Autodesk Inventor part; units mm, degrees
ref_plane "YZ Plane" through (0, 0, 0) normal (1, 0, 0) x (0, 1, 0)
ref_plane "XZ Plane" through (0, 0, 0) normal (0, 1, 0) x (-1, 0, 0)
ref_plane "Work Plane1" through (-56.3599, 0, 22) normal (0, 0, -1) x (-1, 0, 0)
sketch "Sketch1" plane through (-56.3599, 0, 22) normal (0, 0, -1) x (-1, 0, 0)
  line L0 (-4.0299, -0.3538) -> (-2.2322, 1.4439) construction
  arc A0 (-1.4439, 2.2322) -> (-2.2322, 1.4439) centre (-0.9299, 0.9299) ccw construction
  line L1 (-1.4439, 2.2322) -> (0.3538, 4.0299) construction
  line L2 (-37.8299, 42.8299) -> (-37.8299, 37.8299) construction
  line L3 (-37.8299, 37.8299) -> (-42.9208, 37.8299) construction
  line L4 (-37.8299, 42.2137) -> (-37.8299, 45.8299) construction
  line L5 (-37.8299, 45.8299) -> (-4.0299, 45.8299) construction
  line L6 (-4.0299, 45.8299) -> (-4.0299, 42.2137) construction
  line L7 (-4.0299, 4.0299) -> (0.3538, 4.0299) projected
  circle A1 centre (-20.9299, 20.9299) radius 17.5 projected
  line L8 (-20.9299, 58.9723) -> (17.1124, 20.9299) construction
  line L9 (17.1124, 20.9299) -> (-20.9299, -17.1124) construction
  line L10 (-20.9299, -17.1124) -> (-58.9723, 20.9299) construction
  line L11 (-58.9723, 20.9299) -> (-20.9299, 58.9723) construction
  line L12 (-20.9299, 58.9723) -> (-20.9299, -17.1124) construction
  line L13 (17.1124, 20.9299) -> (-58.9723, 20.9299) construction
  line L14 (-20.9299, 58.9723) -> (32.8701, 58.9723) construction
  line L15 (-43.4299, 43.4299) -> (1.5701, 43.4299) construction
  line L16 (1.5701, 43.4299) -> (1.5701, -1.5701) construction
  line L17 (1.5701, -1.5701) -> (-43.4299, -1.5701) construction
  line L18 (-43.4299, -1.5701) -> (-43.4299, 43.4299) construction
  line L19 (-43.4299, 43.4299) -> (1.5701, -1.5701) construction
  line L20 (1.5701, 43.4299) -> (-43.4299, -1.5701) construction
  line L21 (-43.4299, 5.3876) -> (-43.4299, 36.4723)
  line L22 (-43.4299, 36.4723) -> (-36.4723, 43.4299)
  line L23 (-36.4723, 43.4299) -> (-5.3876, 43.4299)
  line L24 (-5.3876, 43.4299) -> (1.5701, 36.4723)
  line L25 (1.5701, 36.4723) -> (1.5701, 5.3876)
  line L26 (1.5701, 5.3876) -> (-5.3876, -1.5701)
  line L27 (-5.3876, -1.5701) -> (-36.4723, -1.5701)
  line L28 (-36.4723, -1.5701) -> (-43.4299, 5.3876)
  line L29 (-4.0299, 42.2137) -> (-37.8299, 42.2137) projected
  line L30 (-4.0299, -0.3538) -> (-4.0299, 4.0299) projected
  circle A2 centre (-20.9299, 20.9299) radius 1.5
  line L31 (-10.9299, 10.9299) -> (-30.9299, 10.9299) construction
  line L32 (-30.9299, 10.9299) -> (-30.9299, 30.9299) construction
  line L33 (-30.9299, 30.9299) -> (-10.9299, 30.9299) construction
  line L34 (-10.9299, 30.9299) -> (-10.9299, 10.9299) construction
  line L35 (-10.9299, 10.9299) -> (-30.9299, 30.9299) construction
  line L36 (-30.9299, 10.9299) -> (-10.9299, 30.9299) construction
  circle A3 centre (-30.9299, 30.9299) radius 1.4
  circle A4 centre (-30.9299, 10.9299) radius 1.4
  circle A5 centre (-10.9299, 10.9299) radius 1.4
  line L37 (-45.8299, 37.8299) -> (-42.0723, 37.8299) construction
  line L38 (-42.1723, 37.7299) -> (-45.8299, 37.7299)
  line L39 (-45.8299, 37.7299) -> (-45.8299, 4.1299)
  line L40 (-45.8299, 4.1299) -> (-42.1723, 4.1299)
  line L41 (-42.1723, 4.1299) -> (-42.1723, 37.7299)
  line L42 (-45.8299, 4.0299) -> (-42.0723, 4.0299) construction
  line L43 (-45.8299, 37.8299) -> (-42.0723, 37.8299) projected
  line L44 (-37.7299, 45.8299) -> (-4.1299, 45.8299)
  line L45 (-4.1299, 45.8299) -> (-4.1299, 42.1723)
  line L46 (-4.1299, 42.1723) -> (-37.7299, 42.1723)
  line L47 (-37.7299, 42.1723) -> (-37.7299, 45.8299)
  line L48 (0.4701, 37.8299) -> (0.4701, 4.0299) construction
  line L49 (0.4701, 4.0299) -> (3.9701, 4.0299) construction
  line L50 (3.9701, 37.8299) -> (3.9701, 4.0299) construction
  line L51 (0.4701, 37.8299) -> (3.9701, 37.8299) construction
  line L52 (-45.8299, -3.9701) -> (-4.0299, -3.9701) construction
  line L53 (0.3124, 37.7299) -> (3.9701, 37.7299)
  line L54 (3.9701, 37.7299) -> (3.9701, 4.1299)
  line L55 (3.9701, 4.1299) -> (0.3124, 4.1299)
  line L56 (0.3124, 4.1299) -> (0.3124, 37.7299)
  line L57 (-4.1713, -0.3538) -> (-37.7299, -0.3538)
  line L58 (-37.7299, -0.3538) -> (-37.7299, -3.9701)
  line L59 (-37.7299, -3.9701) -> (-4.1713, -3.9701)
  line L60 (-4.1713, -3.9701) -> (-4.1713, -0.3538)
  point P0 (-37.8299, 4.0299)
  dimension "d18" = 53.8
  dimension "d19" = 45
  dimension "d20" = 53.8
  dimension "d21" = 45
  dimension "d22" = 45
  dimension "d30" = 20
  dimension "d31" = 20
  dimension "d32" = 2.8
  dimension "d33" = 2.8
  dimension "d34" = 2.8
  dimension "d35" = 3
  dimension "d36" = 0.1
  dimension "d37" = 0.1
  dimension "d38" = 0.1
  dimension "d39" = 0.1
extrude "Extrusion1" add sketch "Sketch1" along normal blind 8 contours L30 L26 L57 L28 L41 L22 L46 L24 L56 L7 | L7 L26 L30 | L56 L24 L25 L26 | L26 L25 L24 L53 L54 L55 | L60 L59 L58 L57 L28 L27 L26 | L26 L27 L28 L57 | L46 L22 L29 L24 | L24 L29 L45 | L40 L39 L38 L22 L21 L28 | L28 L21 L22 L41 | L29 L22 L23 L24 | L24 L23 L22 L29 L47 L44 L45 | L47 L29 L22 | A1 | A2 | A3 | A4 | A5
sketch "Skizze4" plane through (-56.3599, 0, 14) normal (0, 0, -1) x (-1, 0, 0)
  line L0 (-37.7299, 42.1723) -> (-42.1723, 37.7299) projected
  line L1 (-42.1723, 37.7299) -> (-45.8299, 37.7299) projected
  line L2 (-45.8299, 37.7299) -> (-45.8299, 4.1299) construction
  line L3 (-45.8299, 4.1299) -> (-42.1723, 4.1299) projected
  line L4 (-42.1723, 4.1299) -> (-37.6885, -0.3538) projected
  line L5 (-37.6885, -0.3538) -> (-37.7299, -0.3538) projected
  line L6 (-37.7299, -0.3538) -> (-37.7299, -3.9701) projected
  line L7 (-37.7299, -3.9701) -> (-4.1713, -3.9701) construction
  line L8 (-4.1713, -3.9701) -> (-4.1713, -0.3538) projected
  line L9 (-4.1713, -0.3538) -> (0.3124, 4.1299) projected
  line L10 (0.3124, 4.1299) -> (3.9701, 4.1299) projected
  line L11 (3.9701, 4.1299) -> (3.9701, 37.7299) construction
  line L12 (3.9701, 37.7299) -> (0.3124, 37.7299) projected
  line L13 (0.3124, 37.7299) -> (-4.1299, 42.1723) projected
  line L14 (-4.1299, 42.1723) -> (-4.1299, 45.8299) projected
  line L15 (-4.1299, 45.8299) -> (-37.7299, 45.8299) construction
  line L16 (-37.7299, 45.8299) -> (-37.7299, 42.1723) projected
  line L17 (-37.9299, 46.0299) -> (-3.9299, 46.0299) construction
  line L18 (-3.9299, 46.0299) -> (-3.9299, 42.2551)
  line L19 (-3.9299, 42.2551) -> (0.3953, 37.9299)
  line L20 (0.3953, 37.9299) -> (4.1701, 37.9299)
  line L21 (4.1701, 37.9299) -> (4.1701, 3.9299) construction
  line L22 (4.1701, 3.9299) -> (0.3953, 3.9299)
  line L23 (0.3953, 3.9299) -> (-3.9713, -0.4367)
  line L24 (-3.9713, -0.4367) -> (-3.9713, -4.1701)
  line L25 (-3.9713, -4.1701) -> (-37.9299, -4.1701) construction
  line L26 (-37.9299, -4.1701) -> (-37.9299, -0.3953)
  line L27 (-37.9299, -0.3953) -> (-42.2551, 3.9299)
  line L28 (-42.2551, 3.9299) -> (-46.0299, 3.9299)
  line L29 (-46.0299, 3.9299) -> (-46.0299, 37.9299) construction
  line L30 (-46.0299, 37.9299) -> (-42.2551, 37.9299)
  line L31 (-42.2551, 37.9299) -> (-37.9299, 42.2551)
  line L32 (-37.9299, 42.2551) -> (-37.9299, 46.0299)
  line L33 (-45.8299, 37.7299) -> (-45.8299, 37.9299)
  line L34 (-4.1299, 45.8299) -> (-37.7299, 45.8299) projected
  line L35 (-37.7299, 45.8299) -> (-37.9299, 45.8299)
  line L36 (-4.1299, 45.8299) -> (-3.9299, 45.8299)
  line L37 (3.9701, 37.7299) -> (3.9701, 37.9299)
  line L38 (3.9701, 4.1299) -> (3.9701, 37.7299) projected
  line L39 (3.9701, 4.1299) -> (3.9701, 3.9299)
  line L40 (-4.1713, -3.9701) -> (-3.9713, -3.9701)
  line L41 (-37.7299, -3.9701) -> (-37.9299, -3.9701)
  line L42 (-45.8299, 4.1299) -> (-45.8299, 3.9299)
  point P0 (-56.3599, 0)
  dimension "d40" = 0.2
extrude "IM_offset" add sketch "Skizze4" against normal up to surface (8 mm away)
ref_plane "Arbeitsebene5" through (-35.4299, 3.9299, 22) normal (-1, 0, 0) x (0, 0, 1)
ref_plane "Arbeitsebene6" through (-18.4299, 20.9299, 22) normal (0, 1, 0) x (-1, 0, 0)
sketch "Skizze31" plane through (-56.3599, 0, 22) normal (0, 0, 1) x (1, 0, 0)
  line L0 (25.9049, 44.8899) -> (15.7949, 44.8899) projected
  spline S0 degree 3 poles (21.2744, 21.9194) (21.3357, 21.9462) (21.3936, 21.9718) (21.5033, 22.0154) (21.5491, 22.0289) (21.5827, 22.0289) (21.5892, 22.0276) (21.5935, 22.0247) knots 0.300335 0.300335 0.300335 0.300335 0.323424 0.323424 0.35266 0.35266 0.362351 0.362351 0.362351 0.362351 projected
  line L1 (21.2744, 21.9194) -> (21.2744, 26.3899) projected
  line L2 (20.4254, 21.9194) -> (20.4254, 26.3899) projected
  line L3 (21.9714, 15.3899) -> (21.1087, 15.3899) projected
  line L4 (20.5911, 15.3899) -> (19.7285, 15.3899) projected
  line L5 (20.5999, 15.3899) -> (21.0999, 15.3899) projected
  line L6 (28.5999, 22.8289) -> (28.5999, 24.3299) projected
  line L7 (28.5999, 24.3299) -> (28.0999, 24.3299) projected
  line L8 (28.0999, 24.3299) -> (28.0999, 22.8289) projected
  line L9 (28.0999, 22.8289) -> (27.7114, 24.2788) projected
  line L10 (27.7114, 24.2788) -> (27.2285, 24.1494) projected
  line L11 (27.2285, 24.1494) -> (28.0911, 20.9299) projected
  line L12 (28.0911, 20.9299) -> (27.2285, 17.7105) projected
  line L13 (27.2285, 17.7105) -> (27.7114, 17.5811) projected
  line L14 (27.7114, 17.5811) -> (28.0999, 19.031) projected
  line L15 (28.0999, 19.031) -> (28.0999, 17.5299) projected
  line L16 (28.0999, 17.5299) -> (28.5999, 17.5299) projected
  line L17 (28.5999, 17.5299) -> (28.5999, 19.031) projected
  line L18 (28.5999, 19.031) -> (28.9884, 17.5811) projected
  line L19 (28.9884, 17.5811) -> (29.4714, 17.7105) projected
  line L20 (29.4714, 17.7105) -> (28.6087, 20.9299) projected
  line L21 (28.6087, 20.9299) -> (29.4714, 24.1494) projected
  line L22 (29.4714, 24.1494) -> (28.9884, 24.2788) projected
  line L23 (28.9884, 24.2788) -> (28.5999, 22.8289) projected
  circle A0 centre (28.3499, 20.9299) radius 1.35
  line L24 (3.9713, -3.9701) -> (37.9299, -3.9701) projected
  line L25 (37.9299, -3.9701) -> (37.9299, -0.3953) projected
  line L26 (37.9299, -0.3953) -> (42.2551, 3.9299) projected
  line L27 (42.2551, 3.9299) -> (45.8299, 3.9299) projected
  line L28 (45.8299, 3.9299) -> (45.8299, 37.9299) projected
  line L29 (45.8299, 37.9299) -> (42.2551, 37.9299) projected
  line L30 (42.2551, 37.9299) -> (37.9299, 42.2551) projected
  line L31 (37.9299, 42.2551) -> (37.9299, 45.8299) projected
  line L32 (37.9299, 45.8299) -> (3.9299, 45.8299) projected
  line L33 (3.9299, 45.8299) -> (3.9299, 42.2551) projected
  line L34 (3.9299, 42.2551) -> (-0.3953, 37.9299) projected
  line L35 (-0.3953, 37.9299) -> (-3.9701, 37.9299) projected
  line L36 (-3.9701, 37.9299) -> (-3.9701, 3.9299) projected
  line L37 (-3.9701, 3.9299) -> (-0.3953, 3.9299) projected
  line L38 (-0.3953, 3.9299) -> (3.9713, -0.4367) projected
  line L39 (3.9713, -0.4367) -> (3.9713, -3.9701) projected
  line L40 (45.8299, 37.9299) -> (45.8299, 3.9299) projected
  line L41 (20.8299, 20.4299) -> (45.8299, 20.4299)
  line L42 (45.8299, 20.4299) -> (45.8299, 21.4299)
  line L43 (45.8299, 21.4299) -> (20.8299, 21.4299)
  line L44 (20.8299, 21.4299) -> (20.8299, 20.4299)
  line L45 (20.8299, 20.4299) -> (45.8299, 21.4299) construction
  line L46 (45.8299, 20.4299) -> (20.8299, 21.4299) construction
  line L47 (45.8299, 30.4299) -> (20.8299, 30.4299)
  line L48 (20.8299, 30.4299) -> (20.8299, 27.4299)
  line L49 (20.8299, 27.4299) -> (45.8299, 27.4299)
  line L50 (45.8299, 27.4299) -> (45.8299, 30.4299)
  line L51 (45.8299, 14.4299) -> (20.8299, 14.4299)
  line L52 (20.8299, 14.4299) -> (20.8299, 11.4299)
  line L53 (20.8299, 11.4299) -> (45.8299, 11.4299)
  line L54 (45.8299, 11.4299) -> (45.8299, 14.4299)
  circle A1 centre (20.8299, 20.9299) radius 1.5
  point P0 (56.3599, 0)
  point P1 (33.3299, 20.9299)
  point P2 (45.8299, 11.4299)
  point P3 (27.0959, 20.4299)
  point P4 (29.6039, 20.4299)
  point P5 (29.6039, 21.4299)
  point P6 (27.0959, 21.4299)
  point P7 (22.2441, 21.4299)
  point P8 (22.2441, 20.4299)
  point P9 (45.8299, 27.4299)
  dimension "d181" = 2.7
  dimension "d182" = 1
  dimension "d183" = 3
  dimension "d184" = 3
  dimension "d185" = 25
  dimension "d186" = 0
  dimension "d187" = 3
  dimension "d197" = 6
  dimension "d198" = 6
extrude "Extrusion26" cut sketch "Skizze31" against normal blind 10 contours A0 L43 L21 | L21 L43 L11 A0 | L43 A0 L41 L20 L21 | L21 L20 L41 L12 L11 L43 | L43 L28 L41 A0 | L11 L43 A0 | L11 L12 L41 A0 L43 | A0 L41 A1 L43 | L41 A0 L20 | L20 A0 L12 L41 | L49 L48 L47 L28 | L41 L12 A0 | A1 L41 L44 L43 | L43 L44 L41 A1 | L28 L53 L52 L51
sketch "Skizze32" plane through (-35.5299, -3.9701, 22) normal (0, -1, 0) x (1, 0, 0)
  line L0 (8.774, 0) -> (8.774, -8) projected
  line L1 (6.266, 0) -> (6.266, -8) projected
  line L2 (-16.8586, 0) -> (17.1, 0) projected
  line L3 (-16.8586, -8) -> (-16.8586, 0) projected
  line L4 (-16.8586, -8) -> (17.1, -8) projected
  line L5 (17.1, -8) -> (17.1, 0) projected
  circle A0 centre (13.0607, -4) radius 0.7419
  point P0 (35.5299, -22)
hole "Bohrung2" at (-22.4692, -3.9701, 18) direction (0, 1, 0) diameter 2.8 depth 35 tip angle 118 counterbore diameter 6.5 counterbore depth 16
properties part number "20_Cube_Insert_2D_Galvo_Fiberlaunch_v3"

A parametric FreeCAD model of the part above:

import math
import FreeCAD as App
import Part
import Sketcher

V = App.Vector
Q = App.Units.Quantity

doc = App.newDocument("Part")
body = doc.addObject("PartDesign::Body", "Body")

# Sketch on XY plane
sketch1 = doc.addObject("Sketcher::SketchObject", "Sketch")
body.addObject(sketch1)
sketch1.AttachmentSupport = (doc.XY_Plane, [""])
sketch1.MapMode = "FlatFace"
sketch1.AttachmentOffset = App.Placement(V(0, 0, 22), App.Rotation())
sketch1.addGeometry([
    Part.LineSegment(V(-52.189, -0.354, 0), V(-56.672, 4.13, 0)),  # 0
    Part.LineSegment(V(-56.672, 4.13, 0), V(-60.33, 4.13, 0)),  # 1
    Part.LineSegment(V(-60.33, 4.13, 0), V(-60.33, 37.73, 0)),  # 2
    Part.LineSegment(V(-60.33, 37.73, 0), V(-56.672, 37.73, 0)),  # 3
    Part.LineSegment(V(-56.672, 37.73, 0), V(-52.23, 42.172, 0)),  # 4
    Part.LineSegment(V(-52.23, 42.172, 0), V(-52.23, 45.83, 0)),  # 5
    Part.LineSegment(V(-52.23, 45.83, 0), V(-18.63, 45.83, 0)),  # 6
    Part.LineSegment(V(-18.63, 45.83, 0), V(-18.63, 42.172, 0)),  # 7
    Part.LineSegment(V(-18.63, 42.172, 0), V(-14.188, 37.73, 0)),  # 8
    Part.LineSegment(V(-14.188, 37.73, 0), V(-10.53, 37.73, 0)),  # 9
    Part.LineSegment(V(-10.53, 37.73, 0), V(-10.53, 4.13, 0)),  # 10
    Part.LineSegment(V(-10.53, 4.13, 0), V(-14.188, 4.13, 0)),  # 11
    Part.LineSegment(V(-14.188, 4.13, 0), V(-18.671, -0.354, 0)),  # 12
    Part.LineSegment(V(-18.671, -0.354, 0), V(-18.63, -0.354, 0)),  # 13
    Part.LineSegment(V(-18.63, -0.354, 0), V(-18.63, -3.97, 0)),  # 14
    Part.LineSegment(V(-18.63, -3.97, 0), V(-52.189, -3.97, 0)),  # 15
    Part.LineSegment(V(-52.189, -3.97, 0), V(-52.189, -0.354, 0)),  # 16
], False)
sketch1.addConstraint([
    Sketcher.Constraint("Coincident", 0, 2, 1, 1),
    Sketcher.Constraint("Coincident", 1, 2, 2, 1),
    Sketcher.Constraint("Coincident", 2, 2, 3, 1),
    Sketcher.Constraint("Coincident", 3, 2, 4, 1),
    Sketcher.Constraint("Coincident", 4, 2, 5, 1),
    Sketcher.Constraint("Coincident", 5, 2, 6, 1),
    Sketcher.Constraint("Coincident", 6, 2, 7, 1),
    Sketcher.Constraint("Coincident", 7, 2, 8, 1),
    Sketcher.Constraint("Coincident", 8, 2, 9, 1),
    Sketcher.Constraint("Coincident", 9, 2, 10, 1),
    Sketcher.Constraint("Coincident", 10, 2, 11, 1),
    Sketcher.Constraint("Coincident", 11, 2, 12, 1),
    Sketcher.Constraint("Coincident", 12, 2, 13, 1),
    Sketcher.Constraint("Coincident", 13, 2, 14, 1),
    Sketcher.Constraint("Coincident", 14, 2, 15, 1),
    Sketcher.Constraint("Coincident", 15, 2, 16, 1),
    Sketcher.Constraint("Coincident", 16, 2, 0, 1),
    Sketcher.Constraint("Horizontal", 1),
    Sketcher.Constraint("Vertical", 2),
    Sketcher.Constraint("Horizontal", 3),
    Sketcher.Constraint("Vertical", 5),
    Sketcher.Constraint("Horizontal", 6),
    Sketcher.Constraint("Vertical", 7),
    Sketcher.Constraint("Horizontal", 9),
    Sketcher.Constraint("Vertical", 10),
    Sketcher.Constraint("Horizontal", 11),
    Sketcher.Constraint("Horizontal", 13),
    Sketcher.Constraint("Vertical", 14),
    Sketcher.Constraint("Horizontal", 15),
    Sketcher.Constraint("Vertical", 16),
    Sketcher.Constraint("Perpendicular", 0, 4),
    Sketcher.Constraint("Perpendicular", 4, 8),
    Sketcher.Constraint("Perpendicular", 8, 12),
    Sketcher.Constraint("Horizontal", 4, 2, 7, 2),
    Sketcher.Constraint("Horizontal", 3, 2, 8, 2),
    Sketcher.Constraint("Horizontal", 1, 2, 10, 2),
    Sketcher.Constraint("Horizontal", 13, 2, 16, 2),
    Sketcher.Constraint("Vertical", 0, 2, 3, 2),
    Sketcher.Constraint("Vertical", 8, 2, 11, 2),
    Sketcher.Constraint("Vertical", 7, 2, 13, 2),
    Sketcher.Constraint("Equal", 3, 9),
    Sketcher.Constraint("Equal", 6, 2),
    Sketcher.Constraint("Equal", 11, 5),
    Sketcher.Constraint("Equal", 4, 8),
    Sketcher.Constraint("DistanceX", 6, 1, 6, 2, Q("33.6 mm")),
    Sketcher.Constraint("DistanceX", 2, 2, 4, 2, Q("8.1 mm")),
    Sketcher.Constraint("DistanceY", 14, 2, 11, 2, Q("8.1 mm")),
    Sketcher.Constraint("DistanceY", -1, 1, 0, 2, Q("4.13 mm")),
    Sketcher.Constraint("DistanceX", 1, 2, -1, 1, Q("60.33 mm")),
    Sketcher.Constraint("Distance", 0, Q("6.341 mm")),
    Sketcher.Constraint("DistanceX", 1, 2, 1, 1, Q("3.6577 mm")),
])
pad1 = doc.addObject("PartDesign::Pad", "Pad")
body.addObject(pad1)
pad1.Profile = sketch1
pad1.Length = 8
pad1.Reversed = True

# Sketch on XY plane
sketch2 = doc.addObject("Sketcher::SketchObject", "Sketch001")
body.addObject(sketch2)
sketch2.AttachmentSupport = (doc.XY_Plane, [""])
sketch2.MapMode = "FlatFace"
sketch2.AttachmentOffset = App.Placement(V(0, 0, 14), App.Rotation())
sketch2.addGeometry([
    Part.LineSegment(V(-60.33, 3.93, 0), V(-60.33, 4.13, 0)),  # 0
    Part.LineSegment(V(-60.33, 4.13, 0), V(-56.672, 4.13, 0)),  # 1
    Part.LineSegment(V(-56.672, 4.13, 0), V(-52.189, -0.354, 0)),  # 2
    Part.LineSegment(V(-52.189, -0.354, 0), V(-52.189, -3.97, 0)),  # 3
    Part.LineSegment(V(-52.189, -3.97, 0), V(-52.389, -3.97, 0)),  # 4
    Part.LineSegment(V(-52.389, -3.97, 0), V(-52.389, -0.437, 0)),  # 5
    Part.LineSegment(V(-52.389, -0.437, 0), V(-56.755, 3.93, 0)),  # 6
    Part.LineSegment(V(-56.755, 3.93, 0), V(-60.33, 3.93, 0)),  # 7
    Part.LineSegment(V(-52.43, 45.83, 0), V(-52.23, 45.83, 0)),  # 8
    Part.LineSegment(V(-52.23, 45.83, 0), V(-52.23, 42.172, 0)),  # 9
    Part.LineSegment(V(-52.23, 42.172, 0), V(-56.672, 37.73, 0)),  # 10
    Part.LineSegment(V(-56.672, 37.73, 0), V(-60.33, 37.73, 0)),  # 11
    Part.LineSegment(V(-60.33, 37.73, 0), V(-60.33, 37.93, 0)),  # 12
    Part.LineSegment(V(-60.33, 37.93, 0), V(-56.755, 37.93, 0)),  # 13
    Part.LineSegment(V(-56.755, 37.93, 0), V(-52.43, 42.255, 0)),  # 14
    Part.LineSegment(V(-52.43, 42.255, 0), V(-52.43, 45.83, 0)),  # 15
    Part.LineSegment(V(-14.188, 37.73, 0), V(-18.63, 42.172, 0)),  # 16
    Part.LineSegment(V(-18.63, 42.172, 0), V(-18.63, 45.83, 0)),  # 17
    Part.LineSegment(V(-18.63, 45.83, 0), V(-18.43, 45.83, 0)),  # 18
    Part.LineSegment(V(-18.43, 45.83, 0), V(-18.43, 42.255, 0)),  # 19
    Part.LineSegment(V(-18.43, 42.255, 0), V(-14.105, 37.93, 0)),  # 20
    Part.LineSegment(V(-14.105, 37.93, 0), V(-10.53, 37.93, 0)),  # 21
    Part.LineSegment(V(-10.53, 37.93, 0), V(-10.53, 37.73, 0)),  # 22
    Part.LineSegment(V(-10.53, 37.73, 0), V(-14.188, 37.73, 0)),  # 23
    Part.LineSegment(V(-14.188, 4.13, 0), V(-10.53, 4.13, 0)),  # 24
    Part.LineSegment(V(-10.53, 4.13, 0), V(-10.53, 3.93, 0)),  # 25
    Part.LineSegment(V(-10.53, 3.93, 0), V(-14.105, 3.93, 0)),  # 26
    Part.LineSegment(V(-14.105, 3.93, 0), V(-18.43, -0.395, 0)),  # 27
    Part.LineSegment(V(-18.43, -0.395, 0), V(-18.43, -3.97, 0)),  # 28
    Part.LineSegment(V(-18.43, -3.97, 0), V(-18.63, -3.97, 0)),  # 29
    Part.LineSegment(V(-18.63, -3.97, 0), V(-18.63, -0.354, 0)),  # 30
    Part.LineSegment(V(-18.63, -0.354, 0), V(-18.671, -0.354, 0)),  # 31
    Part.LineSegment(V(-18.671, -0.354, 0), V(-14.188, 4.13, 0)),  # 32
], False)
sketch2.addConstraint([
    Sketcher.Constraint("Coincident", 0, 2, 1, 1),
    Sketcher.Constraint("Coincident", 1, 2, 2, 1),
    Sketcher.Constraint("Coincident", 2, 2, 3, 1),
    Sketcher.Constraint("Coincident", 3, 2, 4, 1),
    Sketcher.Constraint("Coincident", 4, 2, 5, 1),
    Sketcher.Constraint("Coincident", 5, 2, 6, 1),
    Sketcher.Constraint("Coincident", 6, 2, 7, 1),
    Sketcher.Constraint("Coincident", 7, 2, 0, 1),
    Sketcher.Constraint("Coincident", 8, 2, 9, 1),
    Sketcher.Constraint("Coincident", 9, 2, 10, 1),
    Sketcher.Constraint("Coincident", 10, 2, 11, 1),
    Sketcher.Constraint("Coincident", 11, 2, 12, 1),
    Sketcher.Constraint("Coincident", 12, 2, 13, 1),
    Sketcher.Constraint("Coincident", 13, 2, 14, 1),
    Sketcher.Constraint("Coincident", 14, 2, 15, 1),
    Sketcher.Constraint("Coincident", 15, 2, 8, 1),
    Sketcher.Constraint("Coincident", 16, 2, 17, 1),
    Sketcher.Constraint("Coincident", 17, 2, 18, 1),
    Sketcher.Constraint("Coincident", 18, 2, 19, 1),
    Sketcher.Constraint("Coincident", 19, 2, 20, 1),
    Sketcher.Constraint("Coincident", 20, 2, 21, 1),
    Sketcher.Constraint("Coincident", 21, 2, 22, 1),
    Sketcher.Constraint("Coincident", 22, 2, 23, 1),
    Sketcher.Constraint("Coincident", 23, 2, 16, 1),
    Sketcher.Constraint("Coincident", 24, 2, 25, 1),
    Sketcher.Constraint("Coincident", 25, 2, 26, 1),
    Sketcher.Constraint("Coincident", 26, 2, 27, 1),
    Sketcher.Constraint("Coincident", 27, 2, 28, 1),
    Sketcher.Constraint("Coincident", 28, 2, 29, 1),
    Sketcher.Constraint("Coincident", 29, 2, 30, 1),
    Sketcher.Constraint("Coincident", 30, 2, 31, 1),
    Sketcher.Constraint("Coincident", 31, 2, 32, 1),
    Sketcher.Constraint("Coincident", 32, 2, 24, 1),
    Sketcher.Constraint("Vertical", 0),
    Sketcher.Constraint("Horizontal", 1),
    Sketcher.Constraint("Vertical", 3),
    Sketcher.Constraint("Horizontal", 4),
    Sketcher.Constraint("Vertical", 5),
    Sketcher.Constraint("Horizontal", 7),
    Sketcher.Constraint("Horizontal", 8),
    Sketcher.Constraint("Vertical", 9),
    Sketcher.Constraint("Horizontal", 11),
    Sketcher.Constraint("Vertical", 12),
    Sketcher.Constraint("Horizontal", 13),
    Sketcher.Constraint("Vertical", 15),
    Sketcher.Constraint("Vertical", 17),
    Sketcher.Constraint("Horizontal", 18),
    Sketcher.Constraint("Vertical", 19),
    Sketcher.Constraint("Horizontal", 21),
    Sketcher.Constraint("Vertical", 22),
    Sketcher.Constraint("Horizontal", 23),
    Sketcher.Constraint("Horizontal", 24),
    Sketcher.Constraint("Vertical", 25),
    Sketcher.Constraint("Horizontal", 26),
    Sketcher.Constraint("Vertical", 28),
    Sketcher.Constraint("Horizontal", 29),
    Sketcher.Constraint("Vertical", 30),
    Sketcher.Constraint("Horizontal", 31),
    Sketcher.Constraint("Parallel", 2, 6),
    Sketcher.Constraint("Perpendicular", 6, 10),
    Sketcher.Constraint("Parallel", 10, 14),
    Sketcher.Constraint("Perpendicular", 14, 16),
    Sketcher.Constraint("Parallel", 16, 20),
    Sketcher.Constraint("Perpendicular", 20, 27),
    Sketcher.Constraint("Parallel", 27, 32),
    Sketcher.Constraint("Horizontal", 9, 2, 16, 2),
    Sketcher.Constraint("Horizontal", 15, 2, 17, 2),
    Sketcher.Constraint("Horizontal", 14, 2, 19, 2),
    Sketcher.Constraint("Horizontal", 13, 2, 20, 2),
    Sketcher.Constraint("Horizontal", 11, 2, 22, 2),
    Sketcher.Constraint("Horizontal", 1, 2, 24, 2),
    Sketcher.Constraint("Horizontal", 7, 2, 25, 2),
    Sketcher.Constraint("Horizontal", 4, 2, 28, 2),
    Sketcher.Constraint("Horizontal", 2, 2, 30, 2),
    Sketcher.Constraint("Vertical", 1, 2, 10, 2),
    Sketcher.Constraint("Vertical", 7, 2, 11, 2),
    Sketcher.Constraint("Vertical", 6, 2, 13, 2),
    Sketcher.Constraint("Vertical", 22, 2, 24, 2),
    Sketcher.Constraint("Vertical", 20, 2, 26, 2),
    Sketcher.Constraint("Vertical", 19, 2, 27, 2),
    Sketcher.Constraint("Vertical", 17, 2, 29, 2),
    Sketcher.Constraint("Vertical", 23, 2, 32, 2),
    Sketcher.Constraint("Equal", 4, 8),
    Sketcher.Constraint("Equal", 8, 18),
    Sketcher.Constraint("Equal", 13, 21),
    Sketcher.Constraint("Equal", 11, 23),
    Sketcher.Constraint("Equal", 29, 0),
    Sketcher.Constraint("Equal", 24, 9),
    Sketcher.Constraint("Equal", 0, 12),
    Sketcher.Constraint("Equal", 19, 28),
    Sketcher.Constraint("DistanceX", 4, 2, 4, 1, Q("0.2 mm")),
    Sketcher.Constraint("DistanceX", 15, 2, 18, 2, Q("34 mm")),
    Sketcher.Constraint("DistanceY", 25, 2, 21, 2, Q("34 mm")),
    Sketcher.Constraint("DistanceY", 3, 2, 1, 2, Q("8.1 mm")),
    Sketcher.Constraint("DistanceX", 0, 2, -1, 1, Q("60.33 mm")),
    Sketcher.Constraint("DistanceY", -1, 1, 0, 2, Q("4.13 mm")),
    Sketcher.Constraint("Distance", 2, Q("6.341 mm")),
    Sketcher.Constraint("DistanceX", 1, 1, 1, 2, Q("3.6577 mm")),
    Sketcher.Constraint("DistanceX", 7, 2, 7, 1, Q("3.5748 mm")),
])
pad2 = doc.addObject("PartDesign::Pad", "Pad001")
body.addObject(pad2)
pad2.Profile = sketch2
pad2.Length = 8

# Sketch on XY plane
sketch3 = doc.addObject("Sketcher::SketchObject", "Sketch002")
body.addObject(sketch3)
sketch3.AttachmentSupport = (doc.XY_Plane, [""])
sketch3.MapMode = "FlatFace"
sketch3.AttachmentOffset = App.Placement(V(0, 0, 22), App.Rotation())
sketch3.addGeometry([
    Part.ArcOfCircle(Part.Circle(V(-28, 20.9, 0), V(0, 0, 1), 1.4), math.radians(22), math.radians(158)),  # 0
    Part.LineSegment(V(-29.3, 21.4, 0), V(-34.1, 21.4, 0)),  # 1
    Part.ArcOfCircle(Part.Circle(V(-35.5, 20.9, 0), V(0, 0, 1), 1.5), math.radians(19), math.radians(341)),  # 2
    Part.LineSegment(V(-34.1, 20.4, 0), V(-29.3, 20.4, 0)),  # 3
    Part.ArcOfCircle(Part.Circle(V(-28, 20.9, 0), V(0, 0, 1), 1.4), math.radians(-158), math.radians(-22)),  # 4
    Part.LineSegment(V(-26.8, 20.4, 0), V(-10.5, 20.4, 0)),  # 5
    Part.LineSegment(V(-10.5, 20.4, 0), V(-10.5, 21.4, 0)),  # 6
    Part.LineSegment(V(-10.5, 21.4, 0), V(-26.8, 21.4, 0)),  # 7
    Part.LineSegment(V(-35.5, 27.4, 0), V(-10.5, 27.4, 0)),  # 8
    Part.LineSegment(V(-10.5, 27.4, 0), V(-10.5, 30.4, 0)),  # 9
    Part.LineSegment(V(-10.5, 30.4, 0), V(-35.5, 30.4, 0)),  # 10
    Part.LineSegment(V(-35.5, 30.4, 0), V(-35.5, 27.4, 0)),  # 11
    Part.LineSegment(V(-10.5, 11.4, 0), V(-10.5, 14.4, 0)),  # 12
    Part.LineSegment(V(-10.5, 14.4, 0), V(-35.5, 14.4, 0)),  # 13
    Part.LineSegment(V(-35.5, 14.4, 0), V(-35.5, 11.4, 0)),  # 14
    Part.LineSegment(V(-35.5, 11.4, 0), V(-10.5, 11.4, 0)),  # 15
], False)
sketch3.addConstraint([
    Sketcher.Constraint("Coincident", 0, 2, 1, 1),
    Sketcher.Constraint("Coincident", 1, 2, 2, 1),
    Sketcher.Constraint("Coincident", 2, 2, 3, 1),
    Sketcher.Constraint("Coincident", 3, 2, 4, 1),
    Sketcher.Constraint("Coincident", 4, 2, 5, 1),
    Sketcher.Constraint("Coincident", 5, 2, 6, 1),
    Sketcher.Constraint("Coincident", 6, 2, 7, 1),
    Sketcher.Constraint("Coincident", 7, 2, 0, 1),
    Sketcher.Constraint("Coincident", 8, 2, 9, 1),
    Sketcher.Constraint("Coincident", 9, 2, 10, 1),
    Sketcher.Constraint("Coincident", 10, 2, 11, 1),
    Sketcher.Constraint("Coincident", 11, 2, 8, 1),
    Sketcher.Constraint("Coincident", 12, 2, 13, 1),
    Sketcher.Constraint("Coincident", 13, 2, 14, 1),
    Sketcher.Constraint("Coincident", 14, 2, 15, 1),
    Sketcher.Constraint("Coincident", 15, 2, 12, 1),
    Sketcher.Constraint("Horizontal", 1),
    Sketcher.Constraint("Horizontal", 3),
    Sketcher.Constraint("Horizontal", 5),
    Sketcher.Constraint("Vertical", 6),
    Sketcher.Constraint("Horizontal", 7),
    Sketcher.Constraint("Horizontal", 8),
    Sketcher.Constraint("Vertical", 9),
    Sketcher.Constraint("Horizontal", 10),
    Sketcher.Constraint("Vertical", 11),
    Sketcher.Constraint("Vertical", 12),
    Sketcher.Constraint("Horizontal", 13),
    Sketcher.Constraint("Vertical", 14),
    Sketcher.Constraint("Horizontal", 15),
    Sketcher.Constraint("Coincident", 4, 3, 0, 3),
    Sketcher.Constraint("Equal", 0, 4),
    Sketcher.Constraint("Horizontal", 0, 3, 2, 3),
    Sketcher.Constraint("Horizontal", 3, 2, 4, 2),
    Sketcher.Constraint("Horizontal", 1, 2, 6, 2),
    Sketcher.Constraint("Vertical", 1, 2, 2, 2),
    Sketcher.Constraint("Vertical", 6, 2, 8, 2),
    Sketcher.Constraint("Vertical", 2, 3, 10, 2),
    Sketcher.Constraint("Vertical", 9, 2, 12, 2),
    Sketcher.Constraint("Vertical", 11, 2, 13, 2),
    Sketcher.Constraint("Equal", 11, 12),
    Sketcher.Constraint("Radius", 2, Q("1.5 mm")),
    Sketcher.Constraint("DistanceX", 8, 1, 8, 2, Q("25 mm")),
    Sketcher.Constraint("DistanceY", 6, 1, 6, 2, Q("1 mm")),
    Sketcher.Constraint("DistanceY", 9, 1, 9, 2, Q("3 mm")),
    Sketcher.Constraint("Radius", 0, Q("1.35 mm")),
    Sketcher.Constraint("DistanceY", 6, 2, 8, 2, Q("6 mm")),
    Sketcher.Constraint("DistanceY", 12, 2, 5, 2, Q("6 mm")),
    Sketcher.Constraint("DistanceX", 5, 1, 5, 2, Q("16.226 mm")),
    Sketcher.Constraint("DistanceX", 0, 3, -1, 1, Q("28.01 mm")),
    Sketcher.Constraint("DistanceY", -1, 1, 0, 3, Q("20.93 mm")),
])
pocket1 = doc.addObject("PartDesign::Pocket", "Pocket")
body.addObject(pocket1)
pocket1.Profile = sketch3
pocket1.Length = 10

# Sketch on XZ plane
sketch4 = doc.addObject("Sketcher::SketchObject", "Sketch003")
body.addObject(sketch4)
sketch4.AttachmentSupport = (doc.XZ_Plane, [""])
sketch4.MapMode = "FlatFace"
sketch4.AttachmentOffset = App.Placement(V(0, 0, 3.9701), App.Rotation())
sketch4.addGeometry(Part.Circle(V(-22.5, 18, 0), V(0, 0, 1), 1.4), False)
sketch4.addConstraint([
    Sketcher.Constraint("Diameter", 0, Q("2.8 mm")),
    Sketcher.Constraint("DistanceY", -1, 1, 0, 3, Q("18 mm")),
    Sketcher.Constraint("DistanceX", 0, 3, -1, 1, Q("22.4692 mm")),
])
doc.recompute()
hole = doc.addObject("PartDesign::Hole", "Hole")
body.addObject(hole)
hole.Profile = sketch4
hole.ThreadType = "None"
hole.Diameter = 2.8
hole.DepthType = "Dimension"
hole.Depth = 35
hole.DrillPoint = "Angled"
hole.DrillPointAngle = 118
hole.HoleCutType = "Counterbore"
hole.HoleCutDiameter = 6.5
hole.HoleCutDepth = 16

doc.recompute()
